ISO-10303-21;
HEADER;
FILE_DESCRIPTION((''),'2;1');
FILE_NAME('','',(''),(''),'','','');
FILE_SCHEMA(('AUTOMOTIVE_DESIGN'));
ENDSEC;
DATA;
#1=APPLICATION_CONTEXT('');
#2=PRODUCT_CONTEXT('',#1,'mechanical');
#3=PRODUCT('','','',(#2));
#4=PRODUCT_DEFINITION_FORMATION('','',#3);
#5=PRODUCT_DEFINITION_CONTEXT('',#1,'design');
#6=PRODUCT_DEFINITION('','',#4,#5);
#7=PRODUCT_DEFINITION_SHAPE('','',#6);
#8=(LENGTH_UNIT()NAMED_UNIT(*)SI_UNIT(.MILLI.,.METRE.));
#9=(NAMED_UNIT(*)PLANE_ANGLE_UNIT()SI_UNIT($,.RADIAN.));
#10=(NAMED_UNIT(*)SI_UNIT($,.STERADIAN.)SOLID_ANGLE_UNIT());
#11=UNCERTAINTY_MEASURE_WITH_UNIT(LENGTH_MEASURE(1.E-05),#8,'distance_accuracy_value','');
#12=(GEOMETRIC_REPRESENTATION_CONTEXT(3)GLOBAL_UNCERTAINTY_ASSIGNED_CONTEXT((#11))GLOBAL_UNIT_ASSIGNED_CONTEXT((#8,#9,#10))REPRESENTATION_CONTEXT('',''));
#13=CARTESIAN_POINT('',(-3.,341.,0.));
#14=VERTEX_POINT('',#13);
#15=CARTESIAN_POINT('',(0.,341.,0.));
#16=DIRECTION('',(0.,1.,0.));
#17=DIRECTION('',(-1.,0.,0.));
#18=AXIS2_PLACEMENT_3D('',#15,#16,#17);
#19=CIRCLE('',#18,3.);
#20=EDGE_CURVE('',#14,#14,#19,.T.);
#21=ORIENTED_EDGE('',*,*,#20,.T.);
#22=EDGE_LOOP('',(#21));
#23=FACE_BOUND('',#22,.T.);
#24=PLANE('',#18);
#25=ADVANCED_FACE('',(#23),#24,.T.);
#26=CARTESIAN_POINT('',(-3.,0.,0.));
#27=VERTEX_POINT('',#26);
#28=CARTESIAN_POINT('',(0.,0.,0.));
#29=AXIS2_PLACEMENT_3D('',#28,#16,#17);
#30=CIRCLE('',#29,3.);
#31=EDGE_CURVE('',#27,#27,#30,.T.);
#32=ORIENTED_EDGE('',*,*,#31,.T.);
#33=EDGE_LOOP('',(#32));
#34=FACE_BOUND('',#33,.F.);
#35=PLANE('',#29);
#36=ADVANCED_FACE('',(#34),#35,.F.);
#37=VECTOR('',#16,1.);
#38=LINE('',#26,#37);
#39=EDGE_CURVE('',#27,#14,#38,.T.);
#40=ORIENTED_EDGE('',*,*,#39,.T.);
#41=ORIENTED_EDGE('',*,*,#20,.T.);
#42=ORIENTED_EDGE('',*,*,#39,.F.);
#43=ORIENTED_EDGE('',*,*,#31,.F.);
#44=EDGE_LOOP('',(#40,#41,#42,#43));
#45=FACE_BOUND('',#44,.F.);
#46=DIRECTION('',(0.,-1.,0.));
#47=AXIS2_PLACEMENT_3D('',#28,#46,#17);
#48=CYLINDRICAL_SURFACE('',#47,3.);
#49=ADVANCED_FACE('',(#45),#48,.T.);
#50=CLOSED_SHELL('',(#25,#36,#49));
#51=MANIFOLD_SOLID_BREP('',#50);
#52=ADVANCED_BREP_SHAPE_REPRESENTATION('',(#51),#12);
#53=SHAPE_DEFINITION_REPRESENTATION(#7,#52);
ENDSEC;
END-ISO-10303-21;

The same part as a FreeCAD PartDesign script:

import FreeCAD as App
import Part
import Sketcher

V = App.Vector

doc = App.newDocument("Part")
params = doc.addObject("Spreadsheet::Sheet", "Params")
for row, (alias, value) in enumerate([
    ("sketch1_diameter", "6 mm"),
    ("pad1_length", "341 mm"),
], start=1):
    params.set(f"A{row}", alias)
    params.set(f"B{row}", "=" + value)
    params.setAlias(f"B{row}", alias)

body = doc.addObject("PartDesign::Body", "Body")

# Sketch on XZ plane
sketch1 = doc.addObject("Sketcher::SketchObject", "Sketch")
body.addObject(sketch1)
sketch1.AttachmentSupport = (doc.XZ_Plane, [""])
sketch1.MapMode = "FlatFace"
sketch1.addGeometry(Part.Circle(V(0, 0, 0), V(0, 0, 1), 3), False)
sketch1.addConstraint(Sketcher.Constraint("Coincident", 0, 3, -1, 1))
sketch1.addConstraint(Sketcher.Constraint("Diameter", 0, 6.0))
sketch1.setExpression("Constraints[1]", "Params.sketch1_diameter")
pad1 = doc.addObject("PartDesign::Pad", "Pad")
body.addObject(pad1)
pad1.Profile = sketch1
pad1.setExpression("Length", "Params.pad1_length")
pad1.Reversed = True

doc.recompute()
